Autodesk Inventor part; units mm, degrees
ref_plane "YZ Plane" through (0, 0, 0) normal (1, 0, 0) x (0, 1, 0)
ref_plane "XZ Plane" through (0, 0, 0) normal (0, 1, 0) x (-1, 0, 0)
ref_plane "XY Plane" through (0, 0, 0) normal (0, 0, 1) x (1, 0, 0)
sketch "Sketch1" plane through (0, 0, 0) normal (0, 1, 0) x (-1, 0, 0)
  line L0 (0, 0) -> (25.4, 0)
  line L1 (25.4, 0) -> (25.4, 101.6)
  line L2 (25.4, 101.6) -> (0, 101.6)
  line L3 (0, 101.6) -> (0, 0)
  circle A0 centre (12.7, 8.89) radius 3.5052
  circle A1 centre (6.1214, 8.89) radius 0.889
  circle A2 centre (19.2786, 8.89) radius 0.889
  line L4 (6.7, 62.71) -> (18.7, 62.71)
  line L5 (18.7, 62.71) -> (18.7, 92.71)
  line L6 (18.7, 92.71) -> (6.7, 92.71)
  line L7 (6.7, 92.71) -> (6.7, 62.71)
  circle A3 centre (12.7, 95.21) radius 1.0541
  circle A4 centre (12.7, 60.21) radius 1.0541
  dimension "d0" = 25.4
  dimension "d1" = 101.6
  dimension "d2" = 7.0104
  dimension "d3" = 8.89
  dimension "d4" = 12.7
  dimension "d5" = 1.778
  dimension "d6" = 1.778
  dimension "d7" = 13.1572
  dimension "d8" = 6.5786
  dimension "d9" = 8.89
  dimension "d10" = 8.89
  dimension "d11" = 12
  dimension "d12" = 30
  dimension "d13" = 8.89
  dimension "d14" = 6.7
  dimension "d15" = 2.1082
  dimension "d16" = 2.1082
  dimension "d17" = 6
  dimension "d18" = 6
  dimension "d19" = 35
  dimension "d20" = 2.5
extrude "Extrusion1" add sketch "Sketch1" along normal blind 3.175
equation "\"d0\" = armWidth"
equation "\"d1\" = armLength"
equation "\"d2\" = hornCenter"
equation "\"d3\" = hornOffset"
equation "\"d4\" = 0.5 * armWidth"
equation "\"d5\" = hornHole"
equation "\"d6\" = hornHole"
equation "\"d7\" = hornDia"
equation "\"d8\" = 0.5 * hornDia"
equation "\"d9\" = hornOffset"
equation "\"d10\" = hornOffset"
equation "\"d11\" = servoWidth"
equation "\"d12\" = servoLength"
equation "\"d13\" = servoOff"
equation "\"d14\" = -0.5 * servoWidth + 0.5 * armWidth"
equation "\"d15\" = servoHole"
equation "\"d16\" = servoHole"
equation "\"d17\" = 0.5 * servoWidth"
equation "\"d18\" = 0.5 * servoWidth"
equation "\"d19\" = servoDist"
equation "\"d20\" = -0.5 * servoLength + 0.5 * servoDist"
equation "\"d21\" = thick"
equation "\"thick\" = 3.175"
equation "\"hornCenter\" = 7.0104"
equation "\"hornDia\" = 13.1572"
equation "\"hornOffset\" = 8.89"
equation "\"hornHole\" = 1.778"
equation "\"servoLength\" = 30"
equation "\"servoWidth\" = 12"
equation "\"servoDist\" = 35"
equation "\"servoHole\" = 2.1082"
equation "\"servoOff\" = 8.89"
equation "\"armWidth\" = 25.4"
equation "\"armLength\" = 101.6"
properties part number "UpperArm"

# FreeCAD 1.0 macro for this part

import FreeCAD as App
import Part
import Sketcher
from FreeCAD import Vector
Q = App.Units.Quantity

doc = App.newDocument("Part")
params = doc.addObject("Spreadsheet::Sheet", "Params")
for row, (alias, value) in enumerate([
    ("sketch1_diameter", "0.07 in"),
    ("sketch1_width", "1 in"),
    ("sketch1_height", "4 in"),
    ("sketch1_diameter2", "0.276 in"),
    ("sketch1_diameter3", "0.083 in"),
    ("pad1_length", "0.125 in"),
], start=1):
    params.set(f"A{row}", alias)
    params.set(f"B{row}", "=" + value)
    params.setAlias(f"B{row}", alias)

body = doc.addObject("PartDesign::Body", "Body")

# Sketch on XZ plane
sketch1 = body.newObject("Sketcher::SketchObject", "Sketch")
sketch1.AttachmentSupport = (doc.getObject("XZ_Plane"), [""])
sketch1.MapMode = "FlatFace"
sketch1.addGeometry([
    Part.LineSegment(Vector(0, 101.6, 0), Vector(0, 0, 0)),  # 0
    Part.LineSegment(Vector(0, 0, 0), Vector(-25.4, 0, 0)),  # 1
    Part.LineSegment(Vector(-25.4, 0, 0), Vector(-25.4, 101.6, 0)),  # 2
    Part.LineSegment(Vector(-25.4, 101.6, 0), Vector(0, 101.6, 0)),  # 3
    Part.Circle(Vector(-6.1, 8.9, 0), Vector(0, 0, 1), 0.9),  # 4
    Part.Circle(Vector(-12.7, 8.9, 0), Vector(0, 0, 1), 3.5),  # 5
    Part.Circle(Vector(-19.3, 8.9, 0), Vector(0, 0, 1), 0.9),  # 6
    Part.Circle(Vector(-12.7, 60.2, 0), Vector(0, 0, 1), 1.1),  # 7
    Part.LineSegment(Vector(-18.7, 62.7, 0), Vector(-6.7, 62.7, 0)),  # 8
    Part.LineSegment(Vector(-6.7, 62.7, 0), Vector(-6.7, 92.7, 0)),  # 9
    Part.LineSegment(Vector(-6.7, 92.7, 0), Vector(-18.7, 92.7, 0)),  # 10
    Part.LineSegment(Vector(-18.7, 92.7, 0), Vector(-18.7, 62.7, 0)),  # 11
    Part.Circle(Vector(-12.7, 95.2, 0), Vector(0, 0, 1), 1.1),  # 12
], False)
sketch1.addConstraint([
    Sketcher.Constraint("Coincident", 0, 2, 1, 1),
    Sketcher.Constraint("Coincident", 1, 2, 2, 1),
    Sketcher.Constraint("Coincident", 2, 2, 3, 1),
    Sketcher.Constraint("Coincident", 3, 2, 0, 1),
    Sketcher.Constraint("Coincident", 8, 2, 9, 1),
    Sketcher.Constraint("Coincident", 9, 2, 10, 1),
    Sketcher.Constraint("Coincident", 10, 2, 11, 1),
    Sketcher.Constraint("Coincident", 11, 2, 8, 1),
    Sketcher.Constraint("Vertical", 0),
    Sketcher.Constraint("Horizontal", 1),
    Sketcher.Constraint("Vertical", 2),
    Sketcher.Constraint("Horizontal", 3),
    Sketcher.Constraint("Horizontal", 8),
    Sketcher.Constraint("Vertical", 9),
    Sketcher.Constraint("Horizontal", 10),
    Sketcher.Constraint("Vertical", 11),
    Sketcher.Constraint("Coincident", 0, 2, -1, 1),
    Sketcher.Constraint("Equal", 4, 6),
    Sketcher.Constraint("Equal", 7, 12),
    Sketcher.Constraint("Horizontal", 4, 3, 5, 3),
    Sketcher.Constraint("Horizontal", 5, 3, 6, 3),
    Sketcher.Constraint("Vertical", 5, 3, 7, 3),
    Sketcher.Constraint("Vertical", 7, 3, 12, 3),
    Sketcher.Constraint("Diameter", 4, Q("0.07 in")),
    Sketcher.Constraint("DistanceX", 1, 2, 1, 1, Q("1 in")),
    Sketcher.Constraint("DistanceY", 0, 2, 0, 1, Q("4 in")),
    Sketcher.Constraint("Diameter", 5, Q("0.276 in")),
    Sketcher.Constraint("Diameter", 7, Q("0.083 in")),
    Sketcher.Constraint("DistanceX", 5, 3, -1, 1, Q("0.5 in")),
    Sketcher.Constraint("DistanceY", -1, 1, 4, 3, Q("0.35 in")),
    Sketcher.Constraint("DistanceY", 9, 2, 3, 2, Q("0.35 in")),
    Sketcher.Constraint("DistanceY", 9, 1, 9, 2, Q("1.1811 in")),
    Sketcher.Constraint("DistanceX", 5, 3, 4, 3, Q("0.259 in")),
    Sketcher.Constraint("DistanceX", 6, 3, 5, 3, Q("0.259 in")),
    Sketcher.Constraint("DistanceX", 8, 1, 8, 2, Q("12 mm")),
    Sketcher.Constraint("DistanceX", 8, 2, -1, 1, Q("6.7 mm")),
    Sketcher.Constraint("DistanceY", 7, 3, 12, 3, Q("35 mm")),
    Sketcher.Constraint("DistanceY", 7, 3, 8, 2, Q("2.5 mm")),
])
sketch1.setExpression("Constraints[23]", "Params.sketch1_diameter")
sketch1.setExpression("Constraints[24]", "Params.sketch1_width")
sketch1.setExpression("Constraints[25]", "Params.sketch1_height")
sketch1.setExpression("Constraints[26]", "Params.sketch1_diameter2")
sketch1.setExpression("Constraints[27]", "Params.sketch1_diameter3")
pad1 = body.newObject("PartDesign::Pad", "Pad")
pad1.Profile = sketch1
pad1.setExpression("Length", "Params.pad1_length")
pad1.Reversed = True

doc.recompute()
